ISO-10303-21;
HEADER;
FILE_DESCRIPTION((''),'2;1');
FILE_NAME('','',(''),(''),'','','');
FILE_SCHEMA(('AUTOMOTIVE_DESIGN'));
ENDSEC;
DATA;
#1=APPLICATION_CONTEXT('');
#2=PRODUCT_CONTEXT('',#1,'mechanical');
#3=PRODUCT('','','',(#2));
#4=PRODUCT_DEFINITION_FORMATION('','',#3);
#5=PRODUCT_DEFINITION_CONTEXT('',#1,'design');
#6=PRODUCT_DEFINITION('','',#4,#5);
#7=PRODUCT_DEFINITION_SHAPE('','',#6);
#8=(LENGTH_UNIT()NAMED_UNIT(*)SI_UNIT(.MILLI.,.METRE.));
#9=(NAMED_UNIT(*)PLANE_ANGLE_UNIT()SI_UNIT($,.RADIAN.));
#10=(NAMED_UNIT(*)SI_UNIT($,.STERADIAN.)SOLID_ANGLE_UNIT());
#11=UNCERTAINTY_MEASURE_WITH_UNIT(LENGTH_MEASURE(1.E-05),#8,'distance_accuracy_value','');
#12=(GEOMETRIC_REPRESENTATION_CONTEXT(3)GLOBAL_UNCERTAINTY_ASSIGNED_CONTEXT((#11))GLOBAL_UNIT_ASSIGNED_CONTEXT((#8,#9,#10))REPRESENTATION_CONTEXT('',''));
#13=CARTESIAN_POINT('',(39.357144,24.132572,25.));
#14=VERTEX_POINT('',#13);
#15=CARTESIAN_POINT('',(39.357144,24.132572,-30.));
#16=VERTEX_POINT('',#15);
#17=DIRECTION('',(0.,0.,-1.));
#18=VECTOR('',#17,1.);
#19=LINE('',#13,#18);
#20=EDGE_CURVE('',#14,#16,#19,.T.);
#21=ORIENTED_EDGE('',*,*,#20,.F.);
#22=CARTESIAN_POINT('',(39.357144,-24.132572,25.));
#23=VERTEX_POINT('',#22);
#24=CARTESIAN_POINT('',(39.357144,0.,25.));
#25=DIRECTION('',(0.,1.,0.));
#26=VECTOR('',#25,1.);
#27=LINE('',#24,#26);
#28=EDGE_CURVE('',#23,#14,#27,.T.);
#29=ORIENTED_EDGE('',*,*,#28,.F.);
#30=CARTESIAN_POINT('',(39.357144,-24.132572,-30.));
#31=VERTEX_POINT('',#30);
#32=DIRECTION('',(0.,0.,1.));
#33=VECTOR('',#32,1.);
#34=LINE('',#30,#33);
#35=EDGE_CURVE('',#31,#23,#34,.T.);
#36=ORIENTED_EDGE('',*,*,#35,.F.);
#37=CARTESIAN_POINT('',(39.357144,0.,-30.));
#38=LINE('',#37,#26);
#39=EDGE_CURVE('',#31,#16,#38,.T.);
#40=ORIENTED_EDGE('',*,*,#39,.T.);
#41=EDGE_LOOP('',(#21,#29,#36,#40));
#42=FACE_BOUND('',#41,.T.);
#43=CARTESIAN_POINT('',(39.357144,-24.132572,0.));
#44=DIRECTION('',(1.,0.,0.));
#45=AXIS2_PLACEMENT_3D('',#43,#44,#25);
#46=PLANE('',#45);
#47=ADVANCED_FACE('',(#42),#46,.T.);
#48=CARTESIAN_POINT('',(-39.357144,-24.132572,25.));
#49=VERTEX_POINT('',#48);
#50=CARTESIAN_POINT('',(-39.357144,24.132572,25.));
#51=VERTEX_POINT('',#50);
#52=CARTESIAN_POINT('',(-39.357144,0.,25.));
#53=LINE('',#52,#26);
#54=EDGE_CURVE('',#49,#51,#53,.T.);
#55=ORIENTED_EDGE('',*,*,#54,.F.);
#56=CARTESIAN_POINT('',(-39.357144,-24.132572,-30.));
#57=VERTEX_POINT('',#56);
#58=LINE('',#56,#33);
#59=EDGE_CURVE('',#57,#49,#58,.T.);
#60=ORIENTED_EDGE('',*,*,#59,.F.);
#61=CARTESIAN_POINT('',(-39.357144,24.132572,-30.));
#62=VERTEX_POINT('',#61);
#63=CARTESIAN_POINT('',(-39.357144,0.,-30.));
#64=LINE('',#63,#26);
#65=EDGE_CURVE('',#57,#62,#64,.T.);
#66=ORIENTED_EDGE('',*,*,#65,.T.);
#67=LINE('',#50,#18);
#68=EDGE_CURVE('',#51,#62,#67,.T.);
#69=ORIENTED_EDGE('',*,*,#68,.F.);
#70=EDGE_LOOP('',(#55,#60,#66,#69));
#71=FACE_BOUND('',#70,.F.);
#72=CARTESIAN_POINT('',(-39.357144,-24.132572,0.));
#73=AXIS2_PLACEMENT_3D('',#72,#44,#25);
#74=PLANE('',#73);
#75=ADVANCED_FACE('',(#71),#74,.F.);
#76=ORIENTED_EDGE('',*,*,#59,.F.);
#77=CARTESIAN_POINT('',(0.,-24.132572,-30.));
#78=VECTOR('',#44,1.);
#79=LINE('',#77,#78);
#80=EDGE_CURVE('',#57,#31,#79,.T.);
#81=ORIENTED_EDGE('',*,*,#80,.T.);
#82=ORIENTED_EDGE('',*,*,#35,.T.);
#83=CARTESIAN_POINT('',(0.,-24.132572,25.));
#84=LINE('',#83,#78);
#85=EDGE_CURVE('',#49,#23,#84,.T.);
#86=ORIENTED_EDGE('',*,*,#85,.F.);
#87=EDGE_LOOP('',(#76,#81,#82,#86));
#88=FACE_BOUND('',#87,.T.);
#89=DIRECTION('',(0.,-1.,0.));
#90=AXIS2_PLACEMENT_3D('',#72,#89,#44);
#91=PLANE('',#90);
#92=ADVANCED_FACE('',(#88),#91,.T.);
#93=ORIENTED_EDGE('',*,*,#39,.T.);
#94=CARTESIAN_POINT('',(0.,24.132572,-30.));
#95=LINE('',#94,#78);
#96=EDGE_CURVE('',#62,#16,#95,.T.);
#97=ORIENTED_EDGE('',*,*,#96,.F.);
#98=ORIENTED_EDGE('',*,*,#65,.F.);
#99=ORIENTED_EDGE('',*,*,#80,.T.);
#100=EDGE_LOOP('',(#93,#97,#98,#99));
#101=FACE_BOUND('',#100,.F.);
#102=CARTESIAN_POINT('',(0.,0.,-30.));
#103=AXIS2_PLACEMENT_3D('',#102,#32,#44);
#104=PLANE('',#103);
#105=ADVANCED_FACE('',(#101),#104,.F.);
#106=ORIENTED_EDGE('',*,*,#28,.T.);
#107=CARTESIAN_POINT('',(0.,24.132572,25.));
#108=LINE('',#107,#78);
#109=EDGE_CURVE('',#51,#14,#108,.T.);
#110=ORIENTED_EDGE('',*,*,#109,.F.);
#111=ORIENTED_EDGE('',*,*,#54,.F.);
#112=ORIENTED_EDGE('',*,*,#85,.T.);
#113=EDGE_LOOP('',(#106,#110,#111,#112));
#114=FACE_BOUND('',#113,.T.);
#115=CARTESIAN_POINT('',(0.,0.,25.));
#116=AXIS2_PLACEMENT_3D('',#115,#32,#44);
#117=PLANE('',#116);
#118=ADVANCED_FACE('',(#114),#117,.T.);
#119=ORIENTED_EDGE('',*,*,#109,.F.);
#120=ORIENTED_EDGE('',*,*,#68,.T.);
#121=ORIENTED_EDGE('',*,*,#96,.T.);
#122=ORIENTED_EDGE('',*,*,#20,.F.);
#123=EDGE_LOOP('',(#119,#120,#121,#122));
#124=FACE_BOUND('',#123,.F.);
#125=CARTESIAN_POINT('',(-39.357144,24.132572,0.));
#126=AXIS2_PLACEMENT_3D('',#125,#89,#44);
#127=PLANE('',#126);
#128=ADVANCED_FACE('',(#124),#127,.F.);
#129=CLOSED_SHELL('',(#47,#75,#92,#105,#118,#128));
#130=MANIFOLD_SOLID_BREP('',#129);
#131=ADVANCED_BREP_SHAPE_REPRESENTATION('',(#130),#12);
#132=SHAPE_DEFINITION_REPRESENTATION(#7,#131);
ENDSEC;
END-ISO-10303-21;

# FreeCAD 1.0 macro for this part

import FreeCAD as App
import Part
import Sketcher
from FreeCAD import Vector
Q = App.Units.Quantity


def add_polygon(sketch, points):
    """Adds a closed chain of lines whose ends are joined by coincident constraints."""
    first, n = sketch.GeometryCount, len(points)
    for a, b in zip(points, points[1:] + points[:1]):
        sketch.addGeometry(Part.LineSegment(App.Vector(*a, 0), App.Vector(*b, 0)), False)
    for i in range(n):
        sketch.addConstraint(Sketcher.Constraint("Coincident", first + i, 2, first + (i + 1) % n, 1))

doc = App.newDocument("Part")
body = doc.addObject("PartDesign::Body", "Body")

sketch1 = body.newObject("Sketcher::SketchObject", "Sketch")
sketch1.AttachmentSupport = (doc.getObject("XY_Plane"), [""])
sketch1.MapMode = "FlatFace"
add_polygon(sketch1, [(-39, 24), (-39, -24), (39, -24), (39, 24)])
sketch1.addConstraint(Sketcher.Constraint("Vertical", 0))
sketch1.addConstraint(Sketcher.Constraint("Horizontal", 1))
sketch1.addConstraint(Sketcher.Constraint("Vertical", 2))
sketch1.addConstraint(Sketcher.Constraint("Horizontal", 3))
sketch1.addConstraint(Sketcher.Constraint("Symmetric", 0, 2, 2, 2, -1, 1))
sketch1.addConstraint(Sketcher.Constraint("DistanceX", 1, 1, 1, 2, Q("78.714288 mm")))
sketch1.addConstraint(Sketcher.Constraint("DistanceY", 0, 2, 0, 1, Q("48.265144 mm")))
pad1 = body.newObject("PartDesign::Pad", "Pad")
pad1.Profile = sketch1
pad1.Length = 25

sketch2 = body.newObject("Sketcher::SketchObject", "Sketch001")
sketch2.AttachmentSupport = (doc.getObject("XY_Plane"), [""])
sketch2.MapMode = "FlatFace"
add_polygon(sketch2, [(-39, 24), (-39, -24), (39, -24), (39, 24)])
sketch2.addConstraint(Sketcher.Constraint("Vertical", 0))
sketch2.addConstraint(Sketcher.Constraint("Horizontal", 1))
sketch2.addConstraint(Sketcher.Constraint("Vertical", 2))
sketch2.addConstraint(Sketcher.Constraint("Horizontal", 3))
sketch2.addConstraint(Sketcher.Constraint("Symmetric", 0, 2, 2, 2, -1, 1))
sketch2.addConstraint(Sketcher.Constraint("DistanceX", 1, 1, 1, 2, Q("78.714288 mm")))
sketch2.addConstraint(Sketcher.Constraint("DistanceY", 0, 2, 0, 1, Q("48.265144 mm")))
pad2 = body.newObject("PartDesign::Pad", "Pad001")
pad2.Profile = sketch2
pad2.Length = 25

sketch3 = body.newObject("Sketcher::SketchObject", "Sketch002")
sketch3.AttachmentSupport = (doc.getObject("XY_Plane"), [""])
sketch3.MapMode = "FlatFace"
add_polygon(sketch3, [(-39, 24), (-39, -24), (39, -24), (39, 24)])
sketch3.addConstraint(Sketcher.Constraint("Vertical", 0))
sketch3.addConstraint(Sketcher.Constraint("Horizontal", 1))
sketch3.addConstraint(Sketcher.Constraint("Vertical", 2))
sketch3.addConstraint(Sketcher.Constraint("Horizontal", 3))
sketch3.addConstraint(Sketcher.Constraint("Symmetric", 0, 2, 2, 2, -1, 1))
sketch3.addConstraint(Sketcher.Constraint("DistanceX", 1, 1, 1, 2, Q("78.714288 mm")))
sketch3.addConstraint(Sketcher.Constraint("DistanceY", 0, 2, 0, 1, Q("48.265144 mm")))
pad3 = body.newObject("PartDesign::Pad", "Pad002")
pad3.Profile = sketch3
pad3.Length = 30
pad3.Reversed = True

doc.recompute()
